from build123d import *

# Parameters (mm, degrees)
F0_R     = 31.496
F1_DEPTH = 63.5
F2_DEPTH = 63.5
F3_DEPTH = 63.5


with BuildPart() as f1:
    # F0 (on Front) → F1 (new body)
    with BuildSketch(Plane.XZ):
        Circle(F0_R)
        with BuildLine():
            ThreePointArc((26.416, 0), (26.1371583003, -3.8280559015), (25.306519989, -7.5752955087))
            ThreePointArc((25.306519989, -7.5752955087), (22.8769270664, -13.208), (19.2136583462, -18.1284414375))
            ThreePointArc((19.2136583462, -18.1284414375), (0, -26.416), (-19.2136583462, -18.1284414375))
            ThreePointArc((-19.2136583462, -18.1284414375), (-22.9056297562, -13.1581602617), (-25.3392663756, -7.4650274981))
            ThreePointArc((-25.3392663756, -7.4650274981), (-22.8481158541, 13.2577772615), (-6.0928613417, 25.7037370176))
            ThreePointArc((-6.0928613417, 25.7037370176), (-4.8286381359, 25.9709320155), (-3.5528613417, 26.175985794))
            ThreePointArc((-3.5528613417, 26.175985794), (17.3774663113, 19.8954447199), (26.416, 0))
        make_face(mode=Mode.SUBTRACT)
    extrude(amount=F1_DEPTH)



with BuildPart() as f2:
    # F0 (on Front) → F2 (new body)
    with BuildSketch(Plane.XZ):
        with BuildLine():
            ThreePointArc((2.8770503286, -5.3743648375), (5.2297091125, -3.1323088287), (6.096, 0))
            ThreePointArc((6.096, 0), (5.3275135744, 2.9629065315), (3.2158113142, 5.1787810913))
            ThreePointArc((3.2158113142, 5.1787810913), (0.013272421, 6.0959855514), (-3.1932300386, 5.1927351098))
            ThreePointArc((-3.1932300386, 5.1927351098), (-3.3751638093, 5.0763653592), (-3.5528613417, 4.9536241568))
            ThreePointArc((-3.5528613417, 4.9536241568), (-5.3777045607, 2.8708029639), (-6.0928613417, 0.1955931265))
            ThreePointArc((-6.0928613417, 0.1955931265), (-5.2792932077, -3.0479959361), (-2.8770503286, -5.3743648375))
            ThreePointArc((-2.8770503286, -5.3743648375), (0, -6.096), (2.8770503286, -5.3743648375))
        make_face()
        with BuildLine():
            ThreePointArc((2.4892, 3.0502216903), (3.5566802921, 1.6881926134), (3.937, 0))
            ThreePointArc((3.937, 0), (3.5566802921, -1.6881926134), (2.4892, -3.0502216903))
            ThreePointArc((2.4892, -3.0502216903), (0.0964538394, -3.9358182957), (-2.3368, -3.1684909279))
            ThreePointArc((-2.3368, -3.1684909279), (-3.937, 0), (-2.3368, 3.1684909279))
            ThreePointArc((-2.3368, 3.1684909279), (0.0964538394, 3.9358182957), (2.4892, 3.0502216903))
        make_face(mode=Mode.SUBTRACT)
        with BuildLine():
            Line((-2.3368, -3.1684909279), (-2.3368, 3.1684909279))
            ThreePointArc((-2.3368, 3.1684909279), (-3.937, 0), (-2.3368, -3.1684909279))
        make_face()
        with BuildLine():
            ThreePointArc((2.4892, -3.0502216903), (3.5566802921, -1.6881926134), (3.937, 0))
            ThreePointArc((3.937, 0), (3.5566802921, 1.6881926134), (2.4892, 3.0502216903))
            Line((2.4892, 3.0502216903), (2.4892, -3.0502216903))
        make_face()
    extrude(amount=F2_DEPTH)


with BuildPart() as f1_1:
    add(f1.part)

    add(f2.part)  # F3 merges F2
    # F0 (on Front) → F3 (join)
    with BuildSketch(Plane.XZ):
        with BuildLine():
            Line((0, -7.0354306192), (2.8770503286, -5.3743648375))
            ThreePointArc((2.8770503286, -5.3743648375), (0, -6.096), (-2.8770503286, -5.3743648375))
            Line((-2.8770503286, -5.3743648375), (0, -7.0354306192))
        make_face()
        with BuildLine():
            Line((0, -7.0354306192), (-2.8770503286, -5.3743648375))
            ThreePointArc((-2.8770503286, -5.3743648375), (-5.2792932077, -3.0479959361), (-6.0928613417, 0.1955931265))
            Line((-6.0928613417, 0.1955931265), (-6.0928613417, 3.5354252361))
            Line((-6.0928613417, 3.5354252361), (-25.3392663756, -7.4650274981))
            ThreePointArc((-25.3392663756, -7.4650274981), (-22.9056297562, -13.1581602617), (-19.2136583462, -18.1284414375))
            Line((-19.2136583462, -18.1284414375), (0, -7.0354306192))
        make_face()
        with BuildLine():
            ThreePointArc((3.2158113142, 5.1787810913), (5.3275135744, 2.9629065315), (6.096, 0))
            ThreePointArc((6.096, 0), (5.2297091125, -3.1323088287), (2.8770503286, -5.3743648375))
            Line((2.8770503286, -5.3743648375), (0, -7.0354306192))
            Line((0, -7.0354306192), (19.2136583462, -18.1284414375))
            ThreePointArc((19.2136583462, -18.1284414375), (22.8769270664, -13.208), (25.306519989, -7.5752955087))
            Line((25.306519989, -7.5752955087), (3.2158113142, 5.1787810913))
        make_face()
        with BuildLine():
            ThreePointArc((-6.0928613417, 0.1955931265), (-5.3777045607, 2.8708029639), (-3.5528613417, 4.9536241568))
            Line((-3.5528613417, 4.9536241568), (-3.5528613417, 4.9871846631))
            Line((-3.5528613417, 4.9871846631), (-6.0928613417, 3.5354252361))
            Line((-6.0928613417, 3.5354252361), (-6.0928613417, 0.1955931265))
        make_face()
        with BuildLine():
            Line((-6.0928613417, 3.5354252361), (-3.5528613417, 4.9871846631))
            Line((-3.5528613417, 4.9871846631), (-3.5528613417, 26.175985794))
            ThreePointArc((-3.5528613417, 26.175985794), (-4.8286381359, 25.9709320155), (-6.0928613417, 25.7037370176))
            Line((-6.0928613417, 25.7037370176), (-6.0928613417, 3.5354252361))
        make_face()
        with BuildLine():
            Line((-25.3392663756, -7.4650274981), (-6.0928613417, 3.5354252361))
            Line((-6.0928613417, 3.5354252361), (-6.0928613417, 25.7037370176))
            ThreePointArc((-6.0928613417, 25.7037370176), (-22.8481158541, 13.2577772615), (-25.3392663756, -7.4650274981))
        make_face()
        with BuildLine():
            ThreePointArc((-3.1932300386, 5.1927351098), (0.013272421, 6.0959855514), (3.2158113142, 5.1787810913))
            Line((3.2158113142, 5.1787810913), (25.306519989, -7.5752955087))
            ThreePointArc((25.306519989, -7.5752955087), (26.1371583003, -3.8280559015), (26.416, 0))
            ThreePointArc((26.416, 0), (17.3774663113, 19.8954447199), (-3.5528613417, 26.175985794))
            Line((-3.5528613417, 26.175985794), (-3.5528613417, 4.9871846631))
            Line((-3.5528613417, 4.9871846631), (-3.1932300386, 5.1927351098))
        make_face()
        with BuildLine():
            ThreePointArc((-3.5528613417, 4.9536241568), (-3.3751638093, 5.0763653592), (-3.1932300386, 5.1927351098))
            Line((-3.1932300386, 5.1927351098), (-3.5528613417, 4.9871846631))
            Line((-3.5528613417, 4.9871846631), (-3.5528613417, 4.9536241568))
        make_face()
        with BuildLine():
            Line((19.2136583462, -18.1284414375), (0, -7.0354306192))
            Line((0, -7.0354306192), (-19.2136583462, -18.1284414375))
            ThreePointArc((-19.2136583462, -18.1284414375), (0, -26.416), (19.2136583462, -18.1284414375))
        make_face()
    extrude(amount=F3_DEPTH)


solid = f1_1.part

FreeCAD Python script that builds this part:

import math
import FreeCAD as App
import Part
import Sketcher
Q = App.Units.Quantity

doc = App.newDocument("Part")
body = doc.addObject("PartDesign::Body", "Body")

sketch1 = doc.addObject("Sketcher::SketchObject", "Sketch")
body.addObject(sketch1)
sketch1.AttachmentSupport = (doc.XZ_Plane, [""])
sketch1.MapMode = "FlatFace"
sketch1.addGeometry([
    Part.Circle(App.Vector(0, 0, 0), App.Vector(0, 0, 1), 31.5),
    Part.ArcOfCircle(Part.Circle(App.Vector(0, 0, 0), App.Vector(0, 0, 1), 26.4), math.radians(0), math.radians(98)),
    Part.ArcOfCircle(Part.Circle(App.Vector(0, 0, 0), App.Vector(0, 0, 1), 26.4), math.radians(-16.66), math.radians(0)),
    Part.ArcOfCircle(Part.Circle(App.Vector(0, 0, 0), App.Vector(0, 0, 1), 26.4), math.radians(-43), math.radians(-17)),
    Part.ArcOfCircle(Part.Circle(App.Vector(0, 0, 0), App.Vector(0, 0, 1), 26.4), math.radians(-137), math.radians(-43)),
    Part.ArcOfCircle(Part.Circle(App.Vector(0, 0, 0), App.Vector(0, 0, 1), 26.4), math.radians(103), math.radians(223)),
    Part.ArcOfCircle(Part.Circle(App.Vector(0, 0, 0), App.Vector(0, 0, 1), 26.4), math.radians(97.73), math.radians(103.34)),
], False)
sketch1.addConstraint([
    Sketcher.Constraint("Tangent", 1, 1, 2, 2),
    Sketcher.Constraint("Tangent", 2, 1, 3, 2),
    Sketcher.Constraint("Tangent", 3, 1, 4, 2),
    Sketcher.Constraint("Tangent", 4, 1, 5, 2),
    Sketcher.Constraint("Tangent", 5, 1, 6, 2),
    Sketcher.Constraint("Tangent", 6, 1, 1, 2),
    Sketcher.Constraint("Coincident", 0, 3, -1, 1),
    Sketcher.Constraint("Coincident", 1, 3, -1, 1),
    Sketcher.Constraint("Coincident", 3, 3, -1, 1),
    Sketcher.Constraint("Equal", 3, 4),
    Sketcher.Constraint("PointOnObject", 1, 1, -1),
    Sketcher.Constraint("Horizontal", 3, 1, 4, 1),
    Sketcher.Constraint("Diameter", 0, Q("2.48 in")),
    Sketcher.Constraint("Radius", 1, Q("1.04 in")),
    Sketcher.Constraint("DistanceX", 5, 1, 6, 1, Q("0.1 in")),
    Sketcher.Constraint("DistanceX", -1, 1, 2, 1, Q("25.30652 mm")),
    Sketcher.Constraint("DistanceX", -1, 1, 3, 1, Q("19.213658 mm")),
    Sketcher.Constraint("DistanceX", 5, 1, -1, 1, Q("6.092861 mm")),
])
pad1 = doc.addObject("PartDesign::Pad", "Pad")
body.addObject(pad1)
pad1.Profile = sketch1
pad1.Length = Q("2.5 in")
body2 = doc.addObject("PartDesign::Body", "Body001")

sketch2 = doc.addObject("Sketcher::SketchObject", "Sketch001")
body2.addObject(sketch2)
sketch2.AttachmentSupport = (doc.getObject("XZ_Plane001"), [""])
sketch2.MapMode = "FlatFace"
sketch2.addGeometry([
    Part.ArcOfCircle(Part.Circle(App.Vector(0, 0, 0), App.Vector(0, 0, 1), 6.1), math.radians(0), math.radians(58)),
    Part.ArcOfCircle(Part.Circle(App.Vector(0, 0, 0), App.Vector(0, 0, 1), 6.1), math.radians(58), math.radians(122)),
    Part.ArcOfCircle(Part.Circle(App.Vector(0, 0, 0), App.Vector(0, 0, 1), 6.1), math.radians(121.59), math.radians(125.65)),
    Part.ArcOfCircle(Part.Circle(App.Vector(0, 0, 0), App.Vector(0, 0, 1), 6.1), math.radians(126), math.radians(178)),
    Part.ArcOfCircle(Part.Circle(App.Vector(0, 0, 0), App.Vector(0, 0, 1), 6.1), math.radians(178), math.radians(242)),
    Part.ArcOfCircle(Part.Circle(App.Vector(0, 0, 0), App.Vector(0, 0, 1), 6.1), math.radians(-118), math.radians(0)),
    Part.ArcOfCircle(Part.Circle(App.Vector(0, 0, 0), App.Vector(0, 0, 1), 3.94), math.radians(51), math.radians(126)),
    Part.LineSegment(App.Vector(2.49, 3.05, 0), App.Vector(2.49, -3.05, 0)),
    Part.ArcOfCircle(Part.Circle(App.Vector(0, 0, 0), App.Vector(0, 0, 1), 3.94), math.radians(-126), math.radians(-51)),
    Part.LineSegment(App.Vector(-2.34, -3.17, 0), App.Vector(-2.34, 3.17, 0)),
], False)
sketch2.addConstraint([
    Sketcher.Constraint("Tangent", 0, 2, 1, 1),
    Sketcher.Constraint("Tangent", 1, 2, 2, 1),
    Sketcher.Constraint("Tangent", 2, 2, 3, 1),
    Sketcher.Constraint("Tangent", 3, 2, 4, 1),
    Sketcher.Constraint("Tangent", 4, 2, 5, 1),
    Sketcher.Constraint("Tangent", 5, 2, 0, 1),
    Sketcher.Constraint("Coincident", 6, 1, 7, 1),
    Sketcher.Constraint("Coincident", 7, 2, 8, 2),
    Sketcher.Constraint("Coincident", 8, 1, 9, 1),
    Sketcher.Constraint("Coincident", 9, 2, 6, 2),
    Sketcher.Constraint("Vertical", 7),
    Sketcher.Constraint("Vertical", 9),
    Sketcher.Constraint("Coincident", 0, 3, -1, 1),
    Sketcher.Constraint("Coincident", 2, 3, -1, 1),
    Sketcher.Constraint("Coincident", 6, 3, -1, 1),
    Sketcher.Constraint("Coincident", 8, 3, -1, 1),
    Sketcher.Constraint("Equal", 2, 3),
    Sketcher.Constraint("Equal", 6, 8),
    Sketcher.Constraint("PointOnObject", 5, 2, -1),
    Sketcher.Constraint("Radius", 0, Q("0.24 in")),
    Sketcher.Constraint("Radius", 6, Q("0.155 in")),
    Sketcher.Constraint("DistanceX", 3, 2, 2, 2, Q("0.1 in")),
    Sketcher.Constraint("DistanceX", -1, 1, 6, 1, Q("0.098 in")),
    Sketcher.Constraint("DistanceX", 8, 1, -1, 1, Q("0.092 in")),
    Sketcher.Constraint("DistanceX", -1, 1, 0, 2, Q("3.215811 mm")),
    Sketcher.Constraint("DistanceX", 1, 2, -1, 1, Q("3.19323 mm")),
    Sketcher.Constraint("DistanceX", 2, 2, -1, 1, Q("3.552861 mm")),
    Sketcher.Constraint("DistanceX", 4, 2, -1, 1, Q("2.87705 mm")),
])
pad2 = doc.addObject("PartDesign::Pad", "Pad001")
body2.addObject(pad2)
pad2.Profile = sketch2
pad2.Length = Q("2.5 in")
body.AllowCompound = True
doc.recompute()

boolean = doc.addObject("PartDesign::Boolean", "Boolean")
body.addObject(boolean)
boolean.Type = "Fuse"
boolean.addObjects([body2])

sketch3 = doc.addObject("Sketcher::SketchObject", "Sketch002")
body.addObject(sketch3)
sketch3.AttachmentSupport = (doc.XZ_Plane, [""])
sketch3.MapMode = "FlatFace"
sketch3.addGeometry([
    Part.ArcOfCircle(Part.Circle(App.Vector(0, 0, 0), App.Vector(0, 0, 1), 26.42), math.radians(-43), math.radians(-17)),
    Part.ArcOfCircle(Part.Circle(App.Vector(0, 0, 0), App.Vector(0, 0, 1), 26.42), math.radians(-16.66), math.radians(0)),
    Part.ArcOfCircle(Part.Circle(App.Vector(0, 0, 0), App.Vector(0, 0, 1), 26.42), math.radians(0), math.radians(98)),
    Part.ArcOfCircle(Part.Circle(App.Vector(0, 0, 0), App.Vector(0, 0, 1), 26.42), math.radians(97.73), math.radians(103.34)),
    Part.ArcOfCircle(Part.Circle(App.Vector(0, 0, 0), App.Vector(0, 0, 1), 26.42), math.radians(103), math.radians(317)),
    Part.ArcOfCircle(Part.Circle(App.Vector(0, 0, 0), App.Vector(0, 0, 1), 6.1), math.radians(121.59), math.radians(125.65)),
    Part.ArcOfCircle(Part.Circle(App.Vector(0, 0, 0), App.Vector(0, 0, 1), 6.1), math.radians(58), math.radians(122)),
    Part.ArcOfCircle(Part.Circle(App.Vector(0, 0, 0), App.Vector(0, 0, 1), 6.1), math.radians(0), math.radians(58)),
    Part.ArcOfCircle(Part.Circle(App.Vector(0, 0, 0), App.Vector(0, 0, 1), 6.1), math.radians(-118), math.radians(0)),
    Part.ArcOfCircle(Part.Circle(App.Vector(0, 0, 0), App.Vector(0, 0, 1), 6.1), math.radians(178), math.radians(242)),
    Part.ArcOfCircle(Part.Circle(App.Vector(0, 0, 0), App.Vector(0, 0, 1), 6.1), math.radians(126), math.radians(178)),
], False)
sketch3.addConstraint([
    Sketcher.Constraint("Tangent", 0, 2, 1, 1),
    Sketcher.Constraint("Tangent", 1, 2, 2, 1),
    Sketcher.Constraint("Tangent", 2, 2, 3, 1),
    Sketcher.Constraint("Tangent", 3, 2, 4, 1),
    Sketcher.Constraint("Tangent", 4, 2, 0, 1),
    Sketcher.Constraint("Tangent", 5, 1, 6, 2),
    Sketcher.Constraint("Tangent", 6, 1, 7, 2),
    Sketcher.Constraint("Tangent", 7, 1, 8, 2),
    Sketcher.Constraint("Tangent", 8, 1, 9, 2),
    Sketcher.Constraint("Tangent", 9, 1, 10, 2),
    Sketcher.Constraint("Tangent", 10, 1, 5, 2),
    Sketcher.Constraint("Coincident", 0, 3, -1, 1),
    Sketcher.Constraint("Coincident", 2, 3, -1, 1),
    Sketcher.Constraint("Coincident", 5, 3, -1, 1),
    Sketcher.Constraint("Coincident", 7, 3, -1, 1),
    Sketcher.Constraint("Equal", 7, 8),
    Sketcher.Constraint("PointOnObject", 1, 2, -1),
    Sketcher.Constraint("PointOnObject", 7, 1, -1),
    Sketcher.Constraint("Vertical", 3, 2, 9, 1),
    Sketcher.Constraint("Vertical", 2, 2, 10, 1),
    Sketcher.Constraint("Radius", 0, Q("1.04 in")),
    Sketcher.Constraint("Radius", 5, Q("0.24 in")),
    Sketcher.Constraint("DistanceX", 3, 2, 2, 2, Q("0.1 in")),
    Sketcher.Constraint("DistanceX", -1, 1, 0, 2, Q("25.30652 mm")),
    Sketcher.Constraint("DistanceX", 2, 2, -1, 1, Q("3.552861 mm")),
    Sketcher.Constraint("DistanceX", -1, 1, 4, 2, Q("19.213658 mm")),
    Sketcher.Constraint("DistanceX", 5, 1, -1, 1, Q("3.19323 mm")),
    Sketcher.Constraint("DistanceX", -1, 1, 6, 1, Q("3.215811 mm")),
    Sketcher.Constraint("DistanceX", 8, 1, -1, 1, Q("2.87705 mm")),
])
pad3 = doc.addObject("PartDesign::Pad", "Pad002")
body.addObject(pad3)
pad3.Profile = sketch3
pad3.Length = Q("2.5 in")

doc.recompute()
